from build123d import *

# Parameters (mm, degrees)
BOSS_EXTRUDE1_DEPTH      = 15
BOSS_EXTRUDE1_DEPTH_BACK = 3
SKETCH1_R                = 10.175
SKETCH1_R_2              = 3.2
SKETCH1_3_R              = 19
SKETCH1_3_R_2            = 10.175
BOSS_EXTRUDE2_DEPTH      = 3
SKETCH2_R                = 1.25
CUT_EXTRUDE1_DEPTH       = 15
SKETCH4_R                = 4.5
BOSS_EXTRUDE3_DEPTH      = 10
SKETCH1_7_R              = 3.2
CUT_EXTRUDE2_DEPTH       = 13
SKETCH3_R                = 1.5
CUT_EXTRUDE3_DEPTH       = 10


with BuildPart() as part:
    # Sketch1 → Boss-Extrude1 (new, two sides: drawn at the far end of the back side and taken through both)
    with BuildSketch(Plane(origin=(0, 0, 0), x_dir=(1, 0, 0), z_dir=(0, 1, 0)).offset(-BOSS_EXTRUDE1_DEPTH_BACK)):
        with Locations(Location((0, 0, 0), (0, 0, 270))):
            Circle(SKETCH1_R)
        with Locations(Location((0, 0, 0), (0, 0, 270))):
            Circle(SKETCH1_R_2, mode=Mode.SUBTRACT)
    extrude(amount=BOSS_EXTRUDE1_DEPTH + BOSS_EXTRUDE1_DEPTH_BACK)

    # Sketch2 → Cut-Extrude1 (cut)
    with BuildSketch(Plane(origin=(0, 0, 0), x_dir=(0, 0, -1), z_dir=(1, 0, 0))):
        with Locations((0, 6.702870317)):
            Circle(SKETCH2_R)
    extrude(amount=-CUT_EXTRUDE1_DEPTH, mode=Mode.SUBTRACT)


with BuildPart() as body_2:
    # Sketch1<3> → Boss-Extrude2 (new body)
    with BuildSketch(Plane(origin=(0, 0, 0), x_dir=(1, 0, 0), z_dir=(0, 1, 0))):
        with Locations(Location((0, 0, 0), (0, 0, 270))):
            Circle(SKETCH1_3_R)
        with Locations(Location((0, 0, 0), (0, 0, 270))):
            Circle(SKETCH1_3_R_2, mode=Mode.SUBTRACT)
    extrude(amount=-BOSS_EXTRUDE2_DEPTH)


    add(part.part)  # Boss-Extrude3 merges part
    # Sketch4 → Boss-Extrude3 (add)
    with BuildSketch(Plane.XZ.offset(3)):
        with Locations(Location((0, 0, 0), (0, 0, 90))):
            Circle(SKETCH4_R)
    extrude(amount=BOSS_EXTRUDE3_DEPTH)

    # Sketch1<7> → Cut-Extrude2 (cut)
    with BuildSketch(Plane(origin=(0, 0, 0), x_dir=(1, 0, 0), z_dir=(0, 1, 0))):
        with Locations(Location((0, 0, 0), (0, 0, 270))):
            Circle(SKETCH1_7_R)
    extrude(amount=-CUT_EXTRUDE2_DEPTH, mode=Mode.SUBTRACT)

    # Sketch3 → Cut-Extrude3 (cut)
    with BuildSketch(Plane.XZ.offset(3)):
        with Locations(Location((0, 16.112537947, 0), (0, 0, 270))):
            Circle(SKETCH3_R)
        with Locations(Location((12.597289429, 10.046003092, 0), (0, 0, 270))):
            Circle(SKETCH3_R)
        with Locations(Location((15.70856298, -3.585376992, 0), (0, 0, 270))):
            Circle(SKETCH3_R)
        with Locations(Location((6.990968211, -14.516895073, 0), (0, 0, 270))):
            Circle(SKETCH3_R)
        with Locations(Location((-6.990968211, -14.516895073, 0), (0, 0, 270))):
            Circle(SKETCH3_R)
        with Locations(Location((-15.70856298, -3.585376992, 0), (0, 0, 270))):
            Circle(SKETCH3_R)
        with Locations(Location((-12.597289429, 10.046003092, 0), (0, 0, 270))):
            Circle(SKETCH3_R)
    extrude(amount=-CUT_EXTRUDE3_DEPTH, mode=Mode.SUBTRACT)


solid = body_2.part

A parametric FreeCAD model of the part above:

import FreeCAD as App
import Part
import Sketcher
from FreeCAD import Vector

doc = App.newDocument("Part")
body = doc.addObject("PartDesign::Body", "Body")

sketch1 = body.newObject("Sketcher::SketchObject", "Sketch")
sketch1.AttachmentSupport = (doc.getObject("XZ_Plane"), [""])
sketch1.MapMode = "FlatFace"
sketch1.addGeometry(Part.Circle(Vector(0, 0, 0), Vector(0, 0, 1), 10.2), False)
sketch1.addGeometry(Part.Circle(Vector(0, 0, 0), Vector(0, 0, 1), 3.2), False)
sketch1.addConstraint(Sketcher.Constraint("Coincident", 0, 3, -1, 1))
sketch1.addConstraint(Sketcher.Constraint("Coincident", 1, 3, -1, 1))
sketch1.addConstraint(Sketcher.Constraint("Diameter", 1, 6.4))
sketch1.addConstraint(Sketcher.Constraint("Diameter", 0, 20.35))
pad1 = body.newObject("PartDesign::Pad", "Pad")
pad1.Profile = sketch1
pad1.Type = "TwoLengths"
pad1.Length = 15
pad1.Length2 = 3
pad1.Reversed = True

sketch2 = body.newObject("Sketcher::SketchObject", "Sketch001")
sketch2.AttachmentSupport = (doc.getObject("YZ_Plane"), [""])
sketch2.MapMode = "FlatFace"
sketch2.addGeometry(Part.Circle(Vector(6.7, 0, 0), Vector(0, 0, 1), 1.2), False)
sketch2.addConstraint(Sketcher.Constraint("PointOnObject", 0, 3, -1))
sketch2.addConstraint(Sketcher.Constraint("Diameter", 0, 2.5))
sketch2.addConstraint(Sketcher.Constraint("DistanceX", -1, 1, 0, 3, 6.70287))
pocket1 = body.newObject("PartDesign::Pocket", "Pocket")
pocket1.Profile = sketch2
pocket1.Length = 15
body2 = doc.addObject("PartDesign::Body", "Body001")

sketch3 = body2.newObject("Sketcher::SketchObject", "Sketch002")
sketch3.AttachmentSupport = (doc.getObject("XZ_Plane001"), [""])
sketch3.MapMode = "FlatFace"
sketch3.addGeometry(Part.Circle(Vector(0, 0, 0), Vector(0, 0, 1), 19), False)
sketch3.addGeometry(Part.Circle(Vector(0, 0, 0), Vector(0, 0, 1), 10), False)
sketch3.addConstraint(Sketcher.Constraint("Coincident", 0, 3, -1, 1))
sketch3.addConstraint(Sketcher.Constraint("Coincident", 1, 3, -1, 1))
sketch3.addConstraint(Sketcher.Constraint("Diameter", 0, 38.0))
sketch3.addConstraint(Sketcher.Constraint("Diameter", 1, 20.35))
pad2 = body2.newObject("PartDesign::Pad", "Pad001")
pad2.Profile = sketch3
pad2.Length = 3
doc.recompute()

boolean = body2.newObject("PartDesign::Boolean", "Boolean")
boolean.Type = "Fuse"
boolean.addObjects([body])

sketch4 = body2.newObject("Sketcher::SketchObject", "Sketch003")
sketch4.AttachmentSupport = (doc.getObject("XZ_Plane001"), [""])
sketch4.MapMode = "FlatFace"
sketch4.AttachmentOffset = App.Placement(Vector(0, 0, 3), App.Rotation())
sketch4.addGeometry(Part.Circle(Vector(0, 0, 0), Vector(0, 0, 1), 4.5), False)
sketch4.addConstraint(Sketcher.Constraint("Coincident", 0, 3, -1, 1))
sketch4.addConstraint(Sketcher.Constraint("Diameter", 0, 9.0))
pad3 = body2.newObject("PartDesign::Pad", "Pad002")
pad3.Profile = sketch4
pad3.Length = 10

sketch5 = body2.newObject("Sketcher::SketchObject", "Sketch004")
sketch5.AttachmentSupport = (doc.getObject("XZ_Plane001"), [""])
sketch5.MapMode = "FlatFace"
sketch5.addGeometry(Part.Circle(Vector(0, 0, 0), Vector(0, 0, 1), 3.2), False)
sketch5.addConstraint(Sketcher.Constraint("Coincident", 0, 3, -1, 1))
sketch5.addConstraint(Sketcher.Constraint("Diameter", 0, 6.4))
pocket2 = body2.newObject("PartDesign::Pocket", "Pocket001")
pocket2.Profile = sketch5
pocket2.Length = 13
pocket2.Reversed = True

sketch6 = body2.newObject("Sketcher::SketchObject", "Sketch005")
sketch6.AttachmentSupport = (doc.getObject("XZ_Plane001"), [""])
sketch6.MapMode = "FlatFace"
sketch6.AttachmentOffset = App.Placement(Vector(0, 0, 3), App.Rotation())
sketch6.addGeometry(Part.Circle(Vector(0, 16.1, 0), Vector(0, 0, 1), 1.5), False)
sketch6.addGeometry(Part.Circle(Vector(12.6, 10, 0), Vector(0, 0, 1), 1.5), False)
sketch6.addGeometry(Part.Circle(Vector(15.7, -3.6, 0), Vector(0, 0, 1), 1.5), False)
sketch6.addGeometry(Part.Circle(Vector(7, -14.5, 0), Vector(0, 0, 1), 1.5), False)
sketch6.addGeometry(Part.Circle(Vector(-7, -14.5, 0), Vector(0, 0, 1), 1.5), False)
sketch6.addGeometry(Part.Circle(Vector(-15.7, -3.6, 0), Vector(0, 0, 1), 1.5), False)
sketch6.addGeometry(Part.Circle(Vector(-12.6, 10, 0), Vector(0, 0, 1), 1.5), False)
sketch6.addConstraint(Sketcher.Constraint("Equal", 0, 1))
sketch6.addConstraint(Sketcher.Constraint("Equal", 1, 2))
sketch6.addConstraint(Sketcher.Constraint("Equal", 2, 3))
sketch6.addConstraint(Sketcher.Constraint("Equal", 3, 4))
sketch6.addConstraint(Sketcher.Constraint("Equal", 4, 5))
sketch6.addConstraint(Sketcher.Constraint("Equal", 5, 6))
sketch6.addConstraint(Sketcher.Constraint("Symmetric", 3, 3, 4, 3, -2))
sketch6.addConstraint(Sketcher.Constraint("Symmetric", 2, 3, 5, 3, -2))
sketch6.addConstraint(Sketcher.Constraint("Symmetric", 1, 3, 6, 3, -2))
sketch6.addConstraint(Sketcher.Constraint("PointOnObject", 0, 3, -2))
sketch6.addConstraint(Sketcher.Constraint("Diameter", 0, 3.0))
sketch6.addConstraint(Sketcher.Constraint("DistanceY", 3, 3, 1, 3, 24.562898))
sketch6.addConstraint(Sketcher.Constraint("DistanceX", -1, 1, 1, 3, 12.597289))
sketch6.addConstraint(Sketcher.Constraint("DistanceX", -1, 1, 3, 3, 6.990968))
sketch6.addConstraint(Sketcher.Constraint("DistanceY", 2, 3, 1, 3, 13.63138))
sketch6.addConstraint(Sketcher.Constraint("DistanceX", 4, 3, 2, 3, 22.699531))
sketch6.addConstraint(Sketcher.Constraint("DistanceY", -1, 1, 0, 3, 16.112538))
sketch6.addConstraint(Sketcher.Constraint("DistanceY", -1, 1, 1, 3, 10.046003))
pocket3 = body2.newObject("PartDesign::Pocket", "Pocket002")
pocket3.Profile = sketch6
pocket3.Length = 10

doc.recompute()
